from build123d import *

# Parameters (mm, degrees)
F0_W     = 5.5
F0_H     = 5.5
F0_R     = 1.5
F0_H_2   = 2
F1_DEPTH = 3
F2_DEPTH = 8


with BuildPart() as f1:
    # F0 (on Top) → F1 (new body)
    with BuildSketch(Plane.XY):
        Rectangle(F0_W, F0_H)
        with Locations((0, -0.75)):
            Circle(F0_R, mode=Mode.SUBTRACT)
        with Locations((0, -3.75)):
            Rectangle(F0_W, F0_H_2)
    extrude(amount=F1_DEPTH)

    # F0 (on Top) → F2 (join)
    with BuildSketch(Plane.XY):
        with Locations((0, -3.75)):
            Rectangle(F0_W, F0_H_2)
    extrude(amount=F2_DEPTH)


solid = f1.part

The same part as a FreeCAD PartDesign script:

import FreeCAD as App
import Part
import Sketcher

V = App.Vector
Q = App.Units.Quantity


def add_polygon(sketch, points):
    """Adds a closed chain of lines whose ends are joined by coincident constraints."""
    first, n = sketch.GeometryCount, len(points)
    for a, b in zip(points, points[1:] + points[:1]):
        sketch.addGeometry(Part.LineSegment(App.Vector(*a, 0), App.Vector(*b, 0)), False)
    for i in range(n):
        sketch.addConstraint(Sketcher.Constraint("Coincident", first + i, 2, first + (i + 1) % n, 1))

doc = App.newDocument("Part")
params = doc.addObject("Spreadsheet::Sheet", "Params")
for row, (alias, value) in enumerate([
    ("sketch1_diameter", "3 mm"),
    ("sketch1_width", "5.5 mm"),
    ("sketch1_height", "7.5 mm"),
    ("pad1_length", "3 mm"),
    ("sketch2_height", "2 mm"),
    ("sketch2_width", "5.5 mm"),
    ("pad2_length", "8 mm"),
], start=1):
    params.set(f"A{row}", alias)
    params.set(f"B{row}", "=" + value)
    params.setAlias(f"B{row}", alias)

body = doc.addObject("PartDesign::Body", "Body")

sketch1 = doc.addObject("Sketcher::SketchObject", "Sketch")
body.addObject(sketch1)
sketch1.AttachmentSupport = (doc.XY_Plane, [""])
sketch1.MapMode = "FlatFace"
add_polygon(sketch1, [(-2.8, 2.8), (-2.8, -4.8), (2.8, -4.8), (2.8, 2.8)])
sketch1.addGeometry(Part.Circle(V(0, -0.8, 0), V(0, 0, 1), 1.5), False)
sketch1.addConstraint([
    Sketcher.Constraint("Vertical", 0),
    Sketcher.Constraint("Horizontal", 1),
    Sketcher.Constraint("Vertical", 2),
    Sketcher.Constraint("Horizontal", 3),
    Sketcher.Constraint("PointOnObject", 4, 3, -2),
    Sketcher.Constraint("Diameter", 4, Q("3 mm")),
    Sketcher.Constraint("DistanceX", 1, 1, 1, 2, Q("5.5 mm")),
    Sketcher.Constraint("DistanceY", 0, 2, 0, 1, Q("7.5 mm")),
    Sketcher.Constraint("DistanceY", 0, 2, 4, 3, Q("4 mm")),
    Sketcher.Constraint("DistanceY", 4, 3, -1, 1, Q("0.75 mm")),
    Sketcher.Constraint("DistanceX", 0, 2, -1, 1, Q("2.75 mm")),
])
sketch1.setExpression("Constraints[9]", "Params.sketch1_diameter")
sketch1.setExpression("Constraints[10]", "Params.sketch1_width")
sketch1.setExpression("Constraints[11]", "Params.sketch1_height")
pad1 = doc.addObject("PartDesign::Pad", "Pad")
body.addObject(pad1)
pad1.Profile = sketch1
pad1.setExpression("Length", "Params.pad1_length")

sketch2 = doc.addObject("Sketcher::SketchObject", "Sketch001")
body.addObject(sketch2)
sketch2.AttachmentSupport = (doc.XY_Plane, [""])
sketch2.MapMode = "FlatFace"
add_polygon(sketch2, [(-2.8, -2.8), (-2.8, -4.8), (2.8, -4.8), (2.8, -2.8)])
sketch2.addConstraint([
    Sketcher.Constraint("Vertical", 0),
    Sketcher.Constraint("Horizontal", 1),
    Sketcher.Constraint("Vertical", 2),
    Sketcher.Constraint("Horizontal", 3),
    Sketcher.Constraint("DistanceY", 0, 2, 0, 1, Q("2 mm")),
    Sketcher.Constraint("DistanceX", 1, 1, 1, 2, Q("5.5 mm")),
    Sketcher.Constraint("DistanceX", 0, 2, -1, 1, Q("2.75 mm")),
    Sketcher.Constraint("DistanceY", 0, 2, -1, 1, Q("4.75 mm")),
])
sketch2.setExpression("Constraints[8]", "Params.sketch2_height")
sketch2.setExpression("Constraints[9]", "Params.sketch2_width")
pad2 = doc.addObject("PartDesign::Pad", "Pad001")
body.addObject(pad2)
pad2.Profile = sketch2
pad2.setExpression("Length", "Params.pad2_length")

doc.recompute()
